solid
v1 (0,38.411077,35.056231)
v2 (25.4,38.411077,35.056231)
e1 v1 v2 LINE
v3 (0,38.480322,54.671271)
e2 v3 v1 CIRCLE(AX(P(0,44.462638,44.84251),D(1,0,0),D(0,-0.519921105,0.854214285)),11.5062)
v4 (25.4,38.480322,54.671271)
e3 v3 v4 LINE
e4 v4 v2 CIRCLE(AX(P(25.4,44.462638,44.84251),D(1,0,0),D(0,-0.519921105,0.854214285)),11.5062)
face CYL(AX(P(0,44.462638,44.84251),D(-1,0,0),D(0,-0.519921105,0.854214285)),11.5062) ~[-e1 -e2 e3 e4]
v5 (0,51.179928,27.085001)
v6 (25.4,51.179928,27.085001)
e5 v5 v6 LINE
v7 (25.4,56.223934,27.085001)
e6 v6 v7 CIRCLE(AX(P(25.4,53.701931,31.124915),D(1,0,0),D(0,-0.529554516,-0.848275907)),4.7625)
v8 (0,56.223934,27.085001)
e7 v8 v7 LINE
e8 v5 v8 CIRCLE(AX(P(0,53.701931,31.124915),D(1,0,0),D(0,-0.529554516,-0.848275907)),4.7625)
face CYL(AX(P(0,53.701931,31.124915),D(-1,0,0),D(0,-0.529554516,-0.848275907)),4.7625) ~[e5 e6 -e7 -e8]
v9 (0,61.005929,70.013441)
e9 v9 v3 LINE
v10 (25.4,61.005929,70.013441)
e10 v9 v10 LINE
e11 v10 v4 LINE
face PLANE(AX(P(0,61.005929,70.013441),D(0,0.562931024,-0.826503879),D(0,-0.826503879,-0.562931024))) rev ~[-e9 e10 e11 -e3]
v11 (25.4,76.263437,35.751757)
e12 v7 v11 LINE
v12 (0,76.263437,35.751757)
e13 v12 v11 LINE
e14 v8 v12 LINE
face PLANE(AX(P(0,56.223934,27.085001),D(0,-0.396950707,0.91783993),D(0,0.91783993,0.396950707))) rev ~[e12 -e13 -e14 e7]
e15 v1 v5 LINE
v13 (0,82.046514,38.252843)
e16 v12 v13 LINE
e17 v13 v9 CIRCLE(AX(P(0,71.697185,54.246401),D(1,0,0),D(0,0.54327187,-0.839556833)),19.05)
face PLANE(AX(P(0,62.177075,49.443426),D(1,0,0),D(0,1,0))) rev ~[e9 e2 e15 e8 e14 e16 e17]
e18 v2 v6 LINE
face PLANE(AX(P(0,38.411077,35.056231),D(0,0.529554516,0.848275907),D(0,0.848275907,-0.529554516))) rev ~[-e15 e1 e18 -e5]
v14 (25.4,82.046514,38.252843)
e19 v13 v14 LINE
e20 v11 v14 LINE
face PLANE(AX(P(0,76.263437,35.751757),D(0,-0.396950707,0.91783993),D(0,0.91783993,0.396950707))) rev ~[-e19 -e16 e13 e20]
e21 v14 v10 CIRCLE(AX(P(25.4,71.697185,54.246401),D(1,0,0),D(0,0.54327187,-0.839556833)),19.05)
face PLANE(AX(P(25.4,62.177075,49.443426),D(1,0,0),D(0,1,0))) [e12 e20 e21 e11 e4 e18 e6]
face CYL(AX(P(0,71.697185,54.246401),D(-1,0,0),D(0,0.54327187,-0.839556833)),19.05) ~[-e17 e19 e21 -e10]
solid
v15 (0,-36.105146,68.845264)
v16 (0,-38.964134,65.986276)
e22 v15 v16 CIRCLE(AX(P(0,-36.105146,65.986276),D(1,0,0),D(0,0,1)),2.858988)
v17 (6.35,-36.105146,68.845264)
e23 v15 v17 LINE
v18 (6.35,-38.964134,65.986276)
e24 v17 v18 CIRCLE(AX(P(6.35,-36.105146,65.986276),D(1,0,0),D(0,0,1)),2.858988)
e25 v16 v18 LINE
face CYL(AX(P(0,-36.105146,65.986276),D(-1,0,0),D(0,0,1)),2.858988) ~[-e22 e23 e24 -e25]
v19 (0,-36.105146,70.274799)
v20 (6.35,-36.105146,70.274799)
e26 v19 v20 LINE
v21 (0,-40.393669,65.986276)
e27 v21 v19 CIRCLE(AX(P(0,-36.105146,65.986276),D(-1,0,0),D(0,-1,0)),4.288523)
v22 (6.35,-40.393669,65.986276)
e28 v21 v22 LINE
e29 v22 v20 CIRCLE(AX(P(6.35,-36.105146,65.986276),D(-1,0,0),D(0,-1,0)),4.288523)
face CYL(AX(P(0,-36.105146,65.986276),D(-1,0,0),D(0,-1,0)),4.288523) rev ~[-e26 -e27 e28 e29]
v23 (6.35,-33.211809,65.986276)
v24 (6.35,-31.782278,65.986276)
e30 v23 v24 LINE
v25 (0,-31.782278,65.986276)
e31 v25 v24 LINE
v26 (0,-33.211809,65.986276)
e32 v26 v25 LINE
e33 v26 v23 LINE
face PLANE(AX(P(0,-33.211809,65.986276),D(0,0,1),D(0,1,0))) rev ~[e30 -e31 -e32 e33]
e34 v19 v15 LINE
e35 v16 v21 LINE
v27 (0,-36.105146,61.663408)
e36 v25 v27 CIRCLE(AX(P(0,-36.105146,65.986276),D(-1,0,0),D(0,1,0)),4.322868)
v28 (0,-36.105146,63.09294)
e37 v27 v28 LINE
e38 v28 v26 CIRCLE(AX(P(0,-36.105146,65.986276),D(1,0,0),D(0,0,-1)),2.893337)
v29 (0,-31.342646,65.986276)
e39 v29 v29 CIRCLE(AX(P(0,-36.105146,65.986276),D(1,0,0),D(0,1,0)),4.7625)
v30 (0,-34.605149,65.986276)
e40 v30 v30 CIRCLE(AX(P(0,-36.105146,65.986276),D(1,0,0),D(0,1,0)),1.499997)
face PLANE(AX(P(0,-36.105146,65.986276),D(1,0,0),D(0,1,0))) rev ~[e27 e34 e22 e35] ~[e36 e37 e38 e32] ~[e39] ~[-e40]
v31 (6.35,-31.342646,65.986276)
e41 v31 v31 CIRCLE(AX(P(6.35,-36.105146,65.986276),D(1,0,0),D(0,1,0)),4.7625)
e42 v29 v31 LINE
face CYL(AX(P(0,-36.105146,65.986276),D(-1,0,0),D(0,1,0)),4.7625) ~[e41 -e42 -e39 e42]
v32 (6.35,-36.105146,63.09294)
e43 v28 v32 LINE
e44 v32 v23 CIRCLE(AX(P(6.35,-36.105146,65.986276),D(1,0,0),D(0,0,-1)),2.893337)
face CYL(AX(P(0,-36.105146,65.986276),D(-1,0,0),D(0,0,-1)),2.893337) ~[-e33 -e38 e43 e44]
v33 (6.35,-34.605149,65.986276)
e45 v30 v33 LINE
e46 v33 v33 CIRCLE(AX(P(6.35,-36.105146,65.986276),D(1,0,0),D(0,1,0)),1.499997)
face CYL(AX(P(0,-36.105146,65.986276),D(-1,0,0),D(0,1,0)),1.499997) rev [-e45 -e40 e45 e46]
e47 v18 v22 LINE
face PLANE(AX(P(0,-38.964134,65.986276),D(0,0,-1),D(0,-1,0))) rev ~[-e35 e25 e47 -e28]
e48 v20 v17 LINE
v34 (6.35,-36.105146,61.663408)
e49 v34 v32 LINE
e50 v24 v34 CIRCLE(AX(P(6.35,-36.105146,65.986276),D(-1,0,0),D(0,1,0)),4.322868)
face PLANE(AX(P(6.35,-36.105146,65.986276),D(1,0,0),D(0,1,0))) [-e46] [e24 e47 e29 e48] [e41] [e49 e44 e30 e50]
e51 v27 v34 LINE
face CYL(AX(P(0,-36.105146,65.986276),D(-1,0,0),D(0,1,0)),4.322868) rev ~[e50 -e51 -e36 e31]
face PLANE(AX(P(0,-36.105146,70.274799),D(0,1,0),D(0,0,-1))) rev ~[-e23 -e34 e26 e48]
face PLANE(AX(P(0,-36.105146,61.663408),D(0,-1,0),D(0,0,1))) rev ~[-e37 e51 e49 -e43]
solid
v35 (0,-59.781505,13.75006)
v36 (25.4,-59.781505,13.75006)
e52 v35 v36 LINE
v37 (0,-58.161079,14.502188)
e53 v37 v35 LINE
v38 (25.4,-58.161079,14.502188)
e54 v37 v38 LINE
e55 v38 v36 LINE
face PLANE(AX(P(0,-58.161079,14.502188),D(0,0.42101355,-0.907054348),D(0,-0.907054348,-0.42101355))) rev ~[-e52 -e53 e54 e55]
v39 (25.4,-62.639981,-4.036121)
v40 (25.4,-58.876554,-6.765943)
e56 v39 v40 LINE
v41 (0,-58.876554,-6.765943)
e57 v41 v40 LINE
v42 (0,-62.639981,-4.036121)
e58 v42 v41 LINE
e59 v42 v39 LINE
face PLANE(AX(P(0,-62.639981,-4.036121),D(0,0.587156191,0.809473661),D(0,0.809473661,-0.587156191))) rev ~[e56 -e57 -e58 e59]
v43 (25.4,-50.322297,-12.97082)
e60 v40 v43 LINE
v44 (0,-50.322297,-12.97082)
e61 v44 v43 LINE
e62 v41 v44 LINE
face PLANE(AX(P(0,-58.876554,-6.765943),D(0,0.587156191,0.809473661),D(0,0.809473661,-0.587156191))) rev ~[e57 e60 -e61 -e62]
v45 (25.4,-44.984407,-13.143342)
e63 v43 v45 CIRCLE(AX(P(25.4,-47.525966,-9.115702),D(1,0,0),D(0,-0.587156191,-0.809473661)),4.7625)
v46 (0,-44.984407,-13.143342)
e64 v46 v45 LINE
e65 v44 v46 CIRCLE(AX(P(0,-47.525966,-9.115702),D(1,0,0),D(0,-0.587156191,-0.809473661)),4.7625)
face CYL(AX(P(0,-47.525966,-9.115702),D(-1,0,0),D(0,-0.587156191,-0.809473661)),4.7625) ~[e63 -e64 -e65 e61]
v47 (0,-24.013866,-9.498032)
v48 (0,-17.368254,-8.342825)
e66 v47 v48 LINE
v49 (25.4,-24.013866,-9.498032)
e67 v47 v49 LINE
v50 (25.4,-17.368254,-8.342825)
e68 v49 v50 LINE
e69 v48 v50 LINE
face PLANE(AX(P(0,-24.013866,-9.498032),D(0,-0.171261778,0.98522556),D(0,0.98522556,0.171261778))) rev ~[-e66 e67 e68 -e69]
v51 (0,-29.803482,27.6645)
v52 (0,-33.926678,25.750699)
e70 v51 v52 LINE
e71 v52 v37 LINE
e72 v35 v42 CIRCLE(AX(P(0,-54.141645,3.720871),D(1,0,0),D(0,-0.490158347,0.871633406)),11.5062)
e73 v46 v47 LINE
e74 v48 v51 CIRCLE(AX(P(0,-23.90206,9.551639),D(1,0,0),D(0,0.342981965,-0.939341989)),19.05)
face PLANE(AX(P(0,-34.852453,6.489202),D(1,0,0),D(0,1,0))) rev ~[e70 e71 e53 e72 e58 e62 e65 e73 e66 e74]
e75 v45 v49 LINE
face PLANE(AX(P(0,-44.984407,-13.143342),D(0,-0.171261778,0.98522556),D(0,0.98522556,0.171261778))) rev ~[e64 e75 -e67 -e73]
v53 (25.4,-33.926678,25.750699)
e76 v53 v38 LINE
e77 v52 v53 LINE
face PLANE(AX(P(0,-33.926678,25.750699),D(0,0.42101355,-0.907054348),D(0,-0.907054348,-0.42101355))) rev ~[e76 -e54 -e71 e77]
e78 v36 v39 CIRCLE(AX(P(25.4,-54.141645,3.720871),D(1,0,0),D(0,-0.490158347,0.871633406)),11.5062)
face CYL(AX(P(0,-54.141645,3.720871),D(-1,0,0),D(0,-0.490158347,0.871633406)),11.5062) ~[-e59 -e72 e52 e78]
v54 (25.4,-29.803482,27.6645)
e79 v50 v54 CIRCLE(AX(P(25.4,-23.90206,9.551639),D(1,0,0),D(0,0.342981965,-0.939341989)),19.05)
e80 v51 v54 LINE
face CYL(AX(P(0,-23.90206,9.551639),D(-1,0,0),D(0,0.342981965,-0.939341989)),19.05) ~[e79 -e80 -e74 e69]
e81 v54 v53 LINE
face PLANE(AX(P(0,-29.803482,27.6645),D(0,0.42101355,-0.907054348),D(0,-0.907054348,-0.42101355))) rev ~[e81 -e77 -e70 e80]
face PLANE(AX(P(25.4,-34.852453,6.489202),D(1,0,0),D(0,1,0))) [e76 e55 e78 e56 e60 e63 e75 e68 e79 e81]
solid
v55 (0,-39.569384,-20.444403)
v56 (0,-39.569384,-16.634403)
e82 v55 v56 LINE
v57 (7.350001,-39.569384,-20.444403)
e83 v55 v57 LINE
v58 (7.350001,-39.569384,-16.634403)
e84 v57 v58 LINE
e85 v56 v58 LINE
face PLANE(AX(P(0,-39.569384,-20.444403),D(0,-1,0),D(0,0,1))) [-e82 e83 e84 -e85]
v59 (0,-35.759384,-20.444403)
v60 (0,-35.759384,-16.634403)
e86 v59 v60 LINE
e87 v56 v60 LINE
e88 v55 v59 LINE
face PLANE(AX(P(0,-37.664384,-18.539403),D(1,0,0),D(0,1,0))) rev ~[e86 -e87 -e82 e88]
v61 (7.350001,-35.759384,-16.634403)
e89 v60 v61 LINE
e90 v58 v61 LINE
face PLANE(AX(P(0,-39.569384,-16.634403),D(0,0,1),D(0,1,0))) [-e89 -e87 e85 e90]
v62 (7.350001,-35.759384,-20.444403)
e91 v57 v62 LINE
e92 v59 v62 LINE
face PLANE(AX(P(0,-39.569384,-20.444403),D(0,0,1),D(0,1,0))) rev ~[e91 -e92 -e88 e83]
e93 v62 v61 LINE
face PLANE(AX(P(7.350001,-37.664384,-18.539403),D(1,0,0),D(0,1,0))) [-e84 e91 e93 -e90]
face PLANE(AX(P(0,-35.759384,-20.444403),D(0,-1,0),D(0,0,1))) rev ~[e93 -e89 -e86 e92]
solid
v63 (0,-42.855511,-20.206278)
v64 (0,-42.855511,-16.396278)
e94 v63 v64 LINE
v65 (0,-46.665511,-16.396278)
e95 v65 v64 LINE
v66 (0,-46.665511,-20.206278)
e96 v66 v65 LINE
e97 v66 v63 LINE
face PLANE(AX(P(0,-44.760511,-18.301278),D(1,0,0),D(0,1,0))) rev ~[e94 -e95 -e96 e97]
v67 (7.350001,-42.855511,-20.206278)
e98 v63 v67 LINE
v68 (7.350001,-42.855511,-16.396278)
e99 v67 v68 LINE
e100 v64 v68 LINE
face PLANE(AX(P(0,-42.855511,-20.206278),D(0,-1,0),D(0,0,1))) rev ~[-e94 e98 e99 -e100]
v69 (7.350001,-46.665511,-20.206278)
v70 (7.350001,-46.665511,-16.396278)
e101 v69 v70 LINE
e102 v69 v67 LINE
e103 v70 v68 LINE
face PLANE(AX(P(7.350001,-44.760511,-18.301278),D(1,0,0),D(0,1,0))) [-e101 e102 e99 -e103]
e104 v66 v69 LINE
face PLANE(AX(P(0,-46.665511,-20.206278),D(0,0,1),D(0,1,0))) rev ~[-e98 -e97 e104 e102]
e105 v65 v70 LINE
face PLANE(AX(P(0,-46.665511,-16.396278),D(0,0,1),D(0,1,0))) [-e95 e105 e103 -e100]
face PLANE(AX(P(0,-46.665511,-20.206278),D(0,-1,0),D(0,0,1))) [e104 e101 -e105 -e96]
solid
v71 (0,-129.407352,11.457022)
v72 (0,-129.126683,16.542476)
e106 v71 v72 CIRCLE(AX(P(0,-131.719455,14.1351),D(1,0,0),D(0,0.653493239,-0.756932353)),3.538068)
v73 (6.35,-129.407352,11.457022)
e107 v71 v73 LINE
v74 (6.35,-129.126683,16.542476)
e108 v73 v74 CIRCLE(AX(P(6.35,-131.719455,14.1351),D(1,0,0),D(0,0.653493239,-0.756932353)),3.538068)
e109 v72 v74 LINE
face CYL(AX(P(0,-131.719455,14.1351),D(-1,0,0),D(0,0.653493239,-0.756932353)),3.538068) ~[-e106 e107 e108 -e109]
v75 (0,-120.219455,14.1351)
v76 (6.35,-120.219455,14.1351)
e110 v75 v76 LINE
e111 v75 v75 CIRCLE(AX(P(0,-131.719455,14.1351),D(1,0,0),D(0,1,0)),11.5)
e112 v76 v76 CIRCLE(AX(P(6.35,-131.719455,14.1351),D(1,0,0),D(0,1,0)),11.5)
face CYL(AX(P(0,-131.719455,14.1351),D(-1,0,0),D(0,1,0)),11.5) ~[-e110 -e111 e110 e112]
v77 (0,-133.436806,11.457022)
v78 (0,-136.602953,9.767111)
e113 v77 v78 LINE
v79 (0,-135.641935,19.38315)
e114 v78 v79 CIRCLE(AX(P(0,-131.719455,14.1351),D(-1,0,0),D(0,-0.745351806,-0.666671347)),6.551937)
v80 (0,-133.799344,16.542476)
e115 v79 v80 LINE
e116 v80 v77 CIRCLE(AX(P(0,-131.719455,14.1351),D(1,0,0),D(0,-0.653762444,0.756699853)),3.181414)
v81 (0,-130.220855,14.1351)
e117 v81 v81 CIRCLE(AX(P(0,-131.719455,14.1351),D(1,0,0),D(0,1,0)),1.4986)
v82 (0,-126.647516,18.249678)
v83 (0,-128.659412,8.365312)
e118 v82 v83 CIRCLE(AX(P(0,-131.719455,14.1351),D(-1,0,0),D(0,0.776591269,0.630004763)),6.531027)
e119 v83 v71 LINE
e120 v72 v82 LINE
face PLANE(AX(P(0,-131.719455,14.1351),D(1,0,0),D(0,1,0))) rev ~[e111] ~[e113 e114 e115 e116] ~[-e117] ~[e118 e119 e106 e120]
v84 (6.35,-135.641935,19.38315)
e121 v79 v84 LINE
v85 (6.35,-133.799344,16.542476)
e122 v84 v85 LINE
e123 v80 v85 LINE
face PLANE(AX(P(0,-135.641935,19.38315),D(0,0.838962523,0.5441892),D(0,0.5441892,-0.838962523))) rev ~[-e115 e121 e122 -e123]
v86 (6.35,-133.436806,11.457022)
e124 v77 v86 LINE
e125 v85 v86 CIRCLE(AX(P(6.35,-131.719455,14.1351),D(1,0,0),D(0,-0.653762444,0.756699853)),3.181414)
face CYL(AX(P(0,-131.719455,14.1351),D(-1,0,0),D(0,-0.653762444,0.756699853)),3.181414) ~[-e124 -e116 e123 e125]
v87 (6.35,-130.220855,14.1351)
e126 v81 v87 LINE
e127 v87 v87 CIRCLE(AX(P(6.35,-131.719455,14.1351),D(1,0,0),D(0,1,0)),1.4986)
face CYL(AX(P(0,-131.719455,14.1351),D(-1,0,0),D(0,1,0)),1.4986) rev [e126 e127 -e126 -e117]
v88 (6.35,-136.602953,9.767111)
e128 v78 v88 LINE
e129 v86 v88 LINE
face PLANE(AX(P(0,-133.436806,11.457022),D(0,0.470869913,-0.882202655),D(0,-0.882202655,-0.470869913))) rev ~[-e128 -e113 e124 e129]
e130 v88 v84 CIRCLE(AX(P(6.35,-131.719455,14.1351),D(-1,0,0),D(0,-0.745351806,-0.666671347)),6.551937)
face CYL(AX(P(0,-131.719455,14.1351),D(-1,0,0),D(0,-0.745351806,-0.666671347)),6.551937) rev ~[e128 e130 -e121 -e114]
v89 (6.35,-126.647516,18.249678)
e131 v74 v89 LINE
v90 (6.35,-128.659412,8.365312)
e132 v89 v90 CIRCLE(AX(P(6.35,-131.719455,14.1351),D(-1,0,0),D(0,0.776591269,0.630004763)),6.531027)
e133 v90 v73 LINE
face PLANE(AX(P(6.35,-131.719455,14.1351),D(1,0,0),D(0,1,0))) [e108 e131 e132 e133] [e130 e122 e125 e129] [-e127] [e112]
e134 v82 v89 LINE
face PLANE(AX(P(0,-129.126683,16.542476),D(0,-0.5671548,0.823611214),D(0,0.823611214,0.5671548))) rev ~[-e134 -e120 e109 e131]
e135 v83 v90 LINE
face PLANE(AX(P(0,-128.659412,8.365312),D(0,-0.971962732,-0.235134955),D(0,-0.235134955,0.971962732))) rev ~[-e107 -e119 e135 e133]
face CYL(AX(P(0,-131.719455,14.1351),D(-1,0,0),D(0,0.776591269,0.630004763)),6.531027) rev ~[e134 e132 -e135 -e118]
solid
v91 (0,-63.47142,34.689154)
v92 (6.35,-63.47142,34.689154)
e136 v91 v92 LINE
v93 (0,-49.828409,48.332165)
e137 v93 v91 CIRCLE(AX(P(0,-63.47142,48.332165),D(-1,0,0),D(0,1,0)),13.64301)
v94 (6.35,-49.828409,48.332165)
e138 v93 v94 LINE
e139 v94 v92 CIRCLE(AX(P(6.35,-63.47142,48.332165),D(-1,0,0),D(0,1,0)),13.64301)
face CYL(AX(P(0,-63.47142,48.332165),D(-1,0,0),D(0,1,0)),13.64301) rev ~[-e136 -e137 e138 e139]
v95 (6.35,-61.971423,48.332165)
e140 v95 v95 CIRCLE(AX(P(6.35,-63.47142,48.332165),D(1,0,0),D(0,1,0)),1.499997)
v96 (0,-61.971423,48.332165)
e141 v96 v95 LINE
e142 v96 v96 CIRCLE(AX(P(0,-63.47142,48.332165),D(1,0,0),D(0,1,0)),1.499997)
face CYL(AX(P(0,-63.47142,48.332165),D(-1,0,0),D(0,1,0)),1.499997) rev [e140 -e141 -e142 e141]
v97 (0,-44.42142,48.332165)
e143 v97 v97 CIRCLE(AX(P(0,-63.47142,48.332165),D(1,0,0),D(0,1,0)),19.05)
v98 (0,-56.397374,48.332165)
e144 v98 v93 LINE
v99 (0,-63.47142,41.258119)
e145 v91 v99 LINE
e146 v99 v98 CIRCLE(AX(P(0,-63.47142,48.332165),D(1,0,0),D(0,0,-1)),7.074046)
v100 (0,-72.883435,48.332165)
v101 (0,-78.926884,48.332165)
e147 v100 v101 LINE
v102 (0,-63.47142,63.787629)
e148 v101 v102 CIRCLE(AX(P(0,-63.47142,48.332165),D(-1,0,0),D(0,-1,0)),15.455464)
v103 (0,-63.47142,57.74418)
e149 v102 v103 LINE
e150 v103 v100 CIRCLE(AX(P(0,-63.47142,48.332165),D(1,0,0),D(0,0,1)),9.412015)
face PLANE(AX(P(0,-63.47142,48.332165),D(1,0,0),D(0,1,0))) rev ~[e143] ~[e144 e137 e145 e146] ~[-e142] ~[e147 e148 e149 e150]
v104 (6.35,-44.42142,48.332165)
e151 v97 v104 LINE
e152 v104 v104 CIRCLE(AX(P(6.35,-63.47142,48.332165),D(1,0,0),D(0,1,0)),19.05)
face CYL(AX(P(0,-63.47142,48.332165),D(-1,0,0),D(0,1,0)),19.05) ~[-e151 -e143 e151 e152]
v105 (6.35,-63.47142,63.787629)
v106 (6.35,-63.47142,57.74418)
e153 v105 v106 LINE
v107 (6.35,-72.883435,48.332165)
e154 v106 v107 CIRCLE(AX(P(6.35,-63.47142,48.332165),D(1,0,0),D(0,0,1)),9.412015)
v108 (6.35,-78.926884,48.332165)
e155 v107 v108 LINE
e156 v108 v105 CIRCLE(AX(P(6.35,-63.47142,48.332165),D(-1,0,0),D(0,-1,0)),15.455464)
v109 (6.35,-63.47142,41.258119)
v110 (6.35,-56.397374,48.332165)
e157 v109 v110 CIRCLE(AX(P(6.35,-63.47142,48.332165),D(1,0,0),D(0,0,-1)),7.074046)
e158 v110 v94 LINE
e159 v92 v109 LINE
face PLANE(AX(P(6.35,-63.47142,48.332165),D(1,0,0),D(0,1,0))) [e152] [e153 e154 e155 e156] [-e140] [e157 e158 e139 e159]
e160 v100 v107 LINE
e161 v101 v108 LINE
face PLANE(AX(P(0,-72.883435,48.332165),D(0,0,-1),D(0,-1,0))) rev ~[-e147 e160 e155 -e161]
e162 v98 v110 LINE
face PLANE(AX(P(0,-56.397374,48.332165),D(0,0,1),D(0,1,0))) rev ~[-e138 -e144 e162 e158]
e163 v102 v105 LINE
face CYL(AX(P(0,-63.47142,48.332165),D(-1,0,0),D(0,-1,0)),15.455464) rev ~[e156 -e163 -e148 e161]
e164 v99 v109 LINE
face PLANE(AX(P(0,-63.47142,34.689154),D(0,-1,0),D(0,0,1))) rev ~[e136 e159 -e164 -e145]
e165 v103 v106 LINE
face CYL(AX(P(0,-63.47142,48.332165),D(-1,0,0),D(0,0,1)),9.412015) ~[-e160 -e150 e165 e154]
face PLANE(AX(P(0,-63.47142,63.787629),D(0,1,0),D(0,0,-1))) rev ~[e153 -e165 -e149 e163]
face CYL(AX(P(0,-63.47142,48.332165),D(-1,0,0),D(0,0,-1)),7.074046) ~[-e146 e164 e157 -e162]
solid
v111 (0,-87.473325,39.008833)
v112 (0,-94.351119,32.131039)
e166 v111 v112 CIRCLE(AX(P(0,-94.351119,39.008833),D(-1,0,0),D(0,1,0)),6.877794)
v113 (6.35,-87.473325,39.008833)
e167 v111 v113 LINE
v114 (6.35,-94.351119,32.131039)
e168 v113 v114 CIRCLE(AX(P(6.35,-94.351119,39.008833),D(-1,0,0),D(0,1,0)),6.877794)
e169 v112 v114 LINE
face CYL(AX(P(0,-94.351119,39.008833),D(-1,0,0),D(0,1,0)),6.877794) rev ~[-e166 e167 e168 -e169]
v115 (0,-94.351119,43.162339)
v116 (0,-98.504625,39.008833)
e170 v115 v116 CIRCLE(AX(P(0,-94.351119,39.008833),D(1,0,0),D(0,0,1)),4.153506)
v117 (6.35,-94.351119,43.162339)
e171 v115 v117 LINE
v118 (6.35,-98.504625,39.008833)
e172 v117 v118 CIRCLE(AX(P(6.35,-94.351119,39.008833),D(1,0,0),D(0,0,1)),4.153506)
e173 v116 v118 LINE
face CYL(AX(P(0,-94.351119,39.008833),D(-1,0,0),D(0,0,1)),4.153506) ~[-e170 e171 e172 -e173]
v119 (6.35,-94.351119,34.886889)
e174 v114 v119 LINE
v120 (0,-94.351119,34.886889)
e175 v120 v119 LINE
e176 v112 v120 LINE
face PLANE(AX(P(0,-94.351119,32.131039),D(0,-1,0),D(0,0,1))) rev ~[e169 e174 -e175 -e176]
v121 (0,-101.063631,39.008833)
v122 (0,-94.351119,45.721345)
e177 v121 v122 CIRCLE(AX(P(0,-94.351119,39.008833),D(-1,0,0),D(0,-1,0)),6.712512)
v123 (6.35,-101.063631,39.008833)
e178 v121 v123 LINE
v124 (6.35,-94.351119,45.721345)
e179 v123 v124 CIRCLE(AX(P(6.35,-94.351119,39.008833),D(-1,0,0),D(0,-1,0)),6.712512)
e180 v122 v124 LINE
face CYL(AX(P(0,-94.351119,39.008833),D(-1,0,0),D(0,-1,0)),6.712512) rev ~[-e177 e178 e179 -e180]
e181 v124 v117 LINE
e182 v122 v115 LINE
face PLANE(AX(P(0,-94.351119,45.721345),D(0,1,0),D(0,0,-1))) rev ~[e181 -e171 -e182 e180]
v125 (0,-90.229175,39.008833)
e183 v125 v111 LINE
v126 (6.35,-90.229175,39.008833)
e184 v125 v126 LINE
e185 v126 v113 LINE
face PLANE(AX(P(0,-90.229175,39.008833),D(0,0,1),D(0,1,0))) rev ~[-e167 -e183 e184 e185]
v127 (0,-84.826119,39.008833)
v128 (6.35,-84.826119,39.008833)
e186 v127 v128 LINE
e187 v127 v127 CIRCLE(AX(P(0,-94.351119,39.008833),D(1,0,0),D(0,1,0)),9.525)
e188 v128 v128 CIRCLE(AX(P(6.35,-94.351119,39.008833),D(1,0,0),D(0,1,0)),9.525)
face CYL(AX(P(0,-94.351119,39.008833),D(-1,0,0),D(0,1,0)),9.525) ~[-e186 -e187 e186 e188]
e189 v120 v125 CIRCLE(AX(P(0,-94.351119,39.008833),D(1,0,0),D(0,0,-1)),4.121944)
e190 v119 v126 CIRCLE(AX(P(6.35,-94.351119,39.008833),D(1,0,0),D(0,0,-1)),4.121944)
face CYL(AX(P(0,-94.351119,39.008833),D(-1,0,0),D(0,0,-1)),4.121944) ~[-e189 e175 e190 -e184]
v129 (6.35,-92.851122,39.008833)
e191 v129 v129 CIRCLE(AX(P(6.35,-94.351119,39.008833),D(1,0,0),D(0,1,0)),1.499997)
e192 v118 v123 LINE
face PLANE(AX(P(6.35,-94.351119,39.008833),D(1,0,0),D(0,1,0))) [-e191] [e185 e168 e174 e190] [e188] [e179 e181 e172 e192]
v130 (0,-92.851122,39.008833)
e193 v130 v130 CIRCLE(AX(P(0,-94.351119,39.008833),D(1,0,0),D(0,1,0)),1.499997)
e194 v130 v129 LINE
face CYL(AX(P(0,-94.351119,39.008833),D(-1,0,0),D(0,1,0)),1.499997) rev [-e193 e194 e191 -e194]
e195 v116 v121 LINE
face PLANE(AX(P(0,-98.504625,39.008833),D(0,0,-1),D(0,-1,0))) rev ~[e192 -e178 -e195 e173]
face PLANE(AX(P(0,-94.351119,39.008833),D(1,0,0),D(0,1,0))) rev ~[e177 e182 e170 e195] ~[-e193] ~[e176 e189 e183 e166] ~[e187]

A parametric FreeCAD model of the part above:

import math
import FreeCAD as App
import Part
import Sketcher
Q = App.Units.Quantity


def add_polygon(sketch, points):
    """Adds a closed chain of lines whose ends are joined by coincident constraints."""
    first, n = sketch.GeometryCount, len(points)
    for a, b in zip(points, points[1:] + points[:1]):
        sketch.addGeometry(Part.LineSegment(App.Vector(*a, 0), App.Vector(*b, 0)), False)
    for i in range(n):
        sketch.addConstraint(Sketcher.Constraint("Coincident", first + i, 2, first + (i + 1) % n, 1))

doc = App.newDocument("Part")
body = doc.addObject("PartDesign::Body", "Body")

# Sketch on YZ plane
sketch1 = body.newObject("Sketcher::SketchObject", "Sketch")
sketch1.AttachmentSupport = (doc.getObject("YZ_Plane"), [""])
sketch1.MapMode = "FlatFace"
add_polygon(sketch1, [(-46.665511, -16.396278), (-46.665511, -20.206278), (-42.855511, -20.206278), (-42.855511, -16.396278)])  # lines 0-3
sketch1.addConstraint([
    Sketcher.Constraint("Vertical", 0),
    Sketcher.Constraint("Horizontal", 1),
    Sketcher.Constraint("Vertical", 2),
    Sketcher.Constraint("Horizontal", 3),
    Sketcher.Constraint("Equal", 3, 0),
    Sketcher.Constraint("DistanceX", 1, 1, 1, 2, Q("0.15 in")),
    Sketcher.Constraint("DistanceX", 0, 2, -1, 1, 46.665511),
    Sketcher.Constraint("DistanceY", 0, 2, -1, 1, 20.206278),
])
pad1 = body.newObject("PartDesign::Pad", "Pad")
pad1.Profile = sketch1
pad1.Length = 7.350001
body2 = doc.addObject("PartDesign::Body", "Body001")

# Sketch on YZ plane
sketch2 = body2.newObject("Sketcher::SketchObject", "Sketch001")
sketch2.AttachmentSupport = (doc.getObject("YZ_Plane001"), [""])
sketch2.MapMode = "FlatFace"
add_polygon(sketch2, [(-39.569384, -16.634403), (-39.569384, -20.444403), (-35.759384, -20.444403), (-35.759384, -16.634403)])  # lines 0-3
sketch2.addConstraint([
    Sketcher.Constraint("Vertical", 0),
    Sketcher.Constraint("Horizontal", 1),
    Sketcher.Constraint("Vertical", 2),
    Sketcher.Constraint("Horizontal", 3),
    Sketcher.Constraint("Equal", 3, 0),
    Sketcher.Constraint("DistanceX", 1, 1, 1, 2, Q("0.15 in")),
    Sketcher.Constraint("DistanceX", 0, 2, -1, 1, 39.569384),
    Sketcher.Constraint("DistanceY", 0, 2, -1, 1, 20.444403),
])
pad2 = body2.newObject("PartDesign::Pad", "Pad001")
pad2.Profile = sketch2
pad2.Length = 7.350001
body3 = doc.addObject("PartDesign::Body", "Body002")

# Sketch on YZ plane
sketch3 = body3.newObject("Sketcher::SketchObject", "Sketch002")
sketch3.AttachmentSupport = (doc.getObject("YZ_Plane002"), [""])
sketch3.MapMode = "FlatFace"
sketch3.addGeometry([
    Part.Circle(App.Vector(-63.47142, 48.332165, 0), App.Vector(0, 0, 1), 19.05),  # 0
    Part.ArcOfCircle(Part.Circle(App.Vector(-63.47142, 48.332165, 0), App.Vector(0, 0, 1), 13.64301), math.radians(-90), math.radians(0)),  # 1
    Part.LineSegment(App.Vector(-63.47142, 34.689154, 0), App.Vector(-63.47142, 41.258119, 0)),  # 2
    Part.ArcOfCircle(Part.Circle(App.Vector(-63.47142, 48.332165, 0), App.Vector(0, 0, 1), 7.074046), math.radians(-90), math.radians(0)),  # 3
    Part.LineSegment(App.Vector(-56.397374, 48.332165, 0), App.Vector(-49.828409, 48.332165, 0)),  # 4
    Part.Circle(App.Vector(-63.47142, 48.332165, 0), App.Vector(0, 0, 1), 1.499997),  # 5
    Part.LineSegment(App.Vector(-63.47142, 63.787629, 0), App.Vector(-63.47142, 57.74418, 0)),  # 6
    Part.ArcOfCircle(Part.Circle(App.Vector(-63.47142, 48.332165, 0), App.Vector(0, 0, 1), 9.412015), math.radians(90), math.radians(180)),  # 7
    Part.LineSegment(App.Vector(-72.883435, 48.332165, 0), App.Vector(-78.926884, 48.332165, 0)),  # 8
    Part.ArcOfCircle(Part.Circle(App.Vector(-63.47142, 48.332165, 0), App.Vector(0, 0, 1), 15.455464), math.radians(90), math.radians(180)),  # 9
], False)
sketch3.addConstraint([
    Sketcher.Constraint("Coincident", 1, 1, 2, 1),
    Sketcher.Constraint("Coincident", 2, 2, 3, 1),
    Sketcher.Constraint("Coincident", 3, 2, 4, 1),
    Sketcher.Constraint("Coincident", 4, 2, 1, 2),
    Sketcher.Constraint("Coincident", 6, 2, 7, 1),
    Sketcher.Constraint("Coincident", 7, 2, 8, 1),
    Sketcher.Constraint("Coincident", 8, 2, 9, 2),
    Sketcher.Constraint("Coincident", 9, 1, 6, 1),
    Sketcher.Constraint("Vertical", 2),
    Sketcher.Constraint("Horizontal", 4),
    Sketcher.Constraint("Vertical", 6),
    Sketcher.Constraint("Horizontal", 8),
    Sketcher.Constraint("Coincident", 1, 3, 0, 3),
    Sketcher.Constraint("Coincident", 3, 3, 0, 3),
    Sketcher.Constraint("Coincident", 5, 3, 0, 3),
    Sketcher.Constraint("Coincident", 7, 3, 0, 3),
    Sketcher.Constraint("Coincident", 9, 3, 0, 3),
    Sketcher.Constraint("Horizontal", 9, 3, 3, 2),
    Sketcher.Constraint("Horizontal", 4, 2, 7, 2),
    Sketcher.Constraint("Vertical", 9, 3, 1, 1),
    Sketcher.Constraint("Vertical", 2, 2, 6, 2),
    Sketcher.Constraint("Diameter", 0, Q("1.5 in")),
    Sketcher.Constraint("Radius", 1, 13.64301),
    Sketcher.Constraint("Diameter", 5, 2.999994),
    Sketcher.Constraint("Radius", 3, 7.074046),
    Sketcher.Constraint("Radius", 7, 9.412015),
    Sketcher.Constraint("Radius", 9, 15.455464),
    Sketcher.Constraint("DistanceX", 0, 3, -1, 1, 63.47142),
    Sketcher.Constraint("DistanceY", -1, 1, 2, 2, 41.258119),
])
pad3 = body3.newObject("PartDesign::Pad", "Pad002")
pad3.Profile = sketch3
pad3.Length = Q("0.25 in")
body4 = doc.addObject("PartDesign::Body", "Body003")

# Sketch on YZ plane
sketch4 = body4.newObject("Sketcher::SketchObject", "Sketch003")
sketch4.AttachmentSupport = (doc.getObject("YZ_Plane003"), [""])
sketch4.MapMode = "FlatFace"
sketch4.addGeometry([
    Part.Circle(App.Vector(-36.105146, 65.986276, 0), App.Vector(0, 0, 1), 4.7625),  # 0
    Part.ArcOfCircle(Part.Circle(App.Vector(-36.105146, 65.986276, 0), App.Vector(0, 0, 1), 4.322868), math.radians(-90), math.radians(0)),  # 1
    Part.LineSegment(App.Vector(-36.105146, 61.663408, 0), App.Vector(-36.105146, 63.09294, 0)),  # 2
    Part.ArcOfCircle(Part.Circle(App.Vector(-36.105146, 65.986276, 0), App.Vector(0, 0, 1), 2.893337), math.radians(-90), math.radians(0)),  # 3
    Part.LineSegment(App.Vector(-33.211809, 65.986276, 0), App.Vector(-31.782278, 65.986276, 0)),  # 4
    Part.Circle(App.Vector(-36.105146, 65.986276, 0), App.Vector(0, 0, 1), 1.499997),  # 5
    Part.LineSegment(App.Vector(-36.105146, 70.274799, 0), App.Vector(-36.105146, 68.845264, 0)),  # 6
    Part.ArcOfCircle(Part.Circle(App.Vector(-36.105146, 65.986276, 0), App.Vector(0, 0, 1), 2.858988), math.radians(90), math.radians(180)),  # 7
    Part.LineSegment(App.Vector(-38.964134, 65.986276, 0), App.Vector(-40.393669, 65.986276, 0)),  # 8
    Part.ArcOfCircle(Part.Circle(App.Vector(-36.105146, 65.986276, 0), App.Vector(0, 0, 1), 4.288523), math.radians(90), math.radians(180)),  # 9
], False)
sketch4.addConstraint([
    Sketcher.Constraint("Coincident", 1, 1, 2, 1),
    Sketcher.Constraint("Coincident", 2, 2, 3, 1),
    Sketcher.Constraint("Coincident", 3, 2, 4, 1),
    Sketcher.Constraint("Coincident", 4, 2, 1, 2),
    Sketcher.Constraint("Coincident", 6, 2, 7, 1),
    Sketcher.Constraint("Coincident", 7, 2, 8, 1),
    Sketcher.Constraint("Coincident", 8, 2, 9, 2),
    Sketcher.Constraint("Coincident", 9, 1, 6, 1),
    Sketcher.Constraint("Vertical", 2),
    Sketcher.Constraint("Horizontal", 4),
    Sketcher.Constraint("Vertical", 6),
    Sketcher.Constraint("Horizontal", 8),
    Sketcher.Constraint("Coincident", 1, 3, 0, 3),
    Sketcher.Constraint("Coincident", 3, 3, 0, 3),
    Sketcher.Constraint("Coincident", 5, 3, 0, 3),
    Sketcher.Constraint("Coincident", 7, 3, 0, 3),
    Sketcher.Constraint("Coincident", 9, 3, 0, 3),
    Sketcher.Constraint("Horizontal", 9, 3, 3, 2),
    Sketcher.Constraint("Horizontal", 4, 2, 7, 2),
    Sketcher.Constraint("Vertical", 9, 3, 1, 1),
    Sketcher.Constraint("Vertical", 2, 2, 6, 2),
    Sketcher.Constraint("Diameter", 0, Q("0.375 in")),
    Sketcher.Constraint("Radius", 1, 4.322868),
    Sketcher.Constraint("Diameter", 5, 2.999994),
    Sketcher.Constraint("Radius", 3, 2.893337),
    Sketcher.Constraint("Radius", 7, 2.858988),
    Sketcher.Constraint("Radius", 9, 4.288523),
    Sketcher.Constraint("DistanceY", -1, 1, 9, 1, 70.274799),
    Sketcher.Constraint("DistanceX", 3, 2, -1, 1, 33.211809),
])
pad4 = body4.newObject("PartDesign::Pad", "Pad003")
pad4.Profile = sketch4
pad4.Length = Q("0.25 in")
body5 = doc.addObject("PartDesign::Body", "Body004")

# Sketch on YZ plane
sketch5 = body5.newObject("Sketcher::SketchObject", "Sketch004")
sketch5.AttachmentSupport = (doc.getObject("YZ_Plane004"), [""])
sketch5.MapMode = "FlatFace"
sketch5.addGeometry([
    Part.Circle(App.Vector(-94.351119, 39.008833, 0), App.Vector(0, 0, 1), 9.525),  # 0
    Part.LineSegment(App.Vector(-90.229175, 39.008833, 0), App.Vector(-87.473325, 39.008833, 0)),  # 1
    Part.ArcOfCircle(Part.Circle(App.Vector(-94.351119, 39.008833, 0), App.Vector(0, 0, 1), 6.877794), math.radians(-90), math.radians(0)),  # 2
    Part.LineSegment(App.Vector(-94.351119, 32.131039, 0), App.Vector(-94.351119, 34.886889, 0)),  # 3
    Part.ArcOfCircle(Part.Circle(App.Vector(-94.351119, 39.008833, 0), App.Vector(0, 0, 1), 4.121944), math.radians(-90), math.radians(0)),  # 4
    Part.Circle(App.Vector(-94.351119, 39.008833, 0), App.Vector(0, 0, 1), 1.499997),  # 5
    Part.ArcOfCircle(Part.Circle(App.Vector(-94.351119, 39.008833, 0), App.Vector(0, 0, 1), 4.153506), math.radians(90), math.radians(180)),  # 6
    Part.LineSegment(App.Vector(-98.504625, 39.008833, 0), App.Vector(-101.063631, 39.008833, 0)),  # 7
    Part.ArcOfCircle(Part.Circle(App.Vector(-94.351119, 39.008833, 0), App.Vector(0, 0, 1), 6.712512), math.radians(90), math.radians(180)),  # 8
    Part.LineSegment(App.Vector(-94.351119, 45.721345, 0), App.Vector(-94.351119, 43.162339, 0)),  # 9
], False)
sketch5.addConstraint([
    Sketcher.Constraint("Coincident", 1, 2, 2, 2),
    Sketcher.Constraint("Coincident", 2, 1, 3, 1),
    Sketcher.Constraint("Coincident", 3, 2, 4, 1),
    Sketcher.Constraint("Coincident", 4, 2, 1, 1),
    Sketcher.Constraint("Coincident", 6, 2, 7, 1),
    Sketcher.Constraint("Coincident", 7, 2, 8, 2),
    Sketcher.Constraint("Coincident", 8, 1, 9, 1),
    Sketcher.Constraint("Coincident", 9, 2, 6, 1),
    Sketcher.Constraint("Horizontal", 1),
    Sketcher.Constraint("Vertical", 3),
    Sketcher.Constraint("Horizontal", 7),
    Sketcher.Constraint("Vertical", 9),
    Sketcher.Constraint("Coincident", 2, 3, 0, 3),
    Sketcher.Constraint("Coincident", 4, 3, 0, 3),
    Sketcher.Constraint("Coincident", 5, 3, 0, 3),
    Sketcher.Constraint("Coincident", 6, 3, 0, 3),
    Sketcher.Constraint("Coincident", 8, 3, 0, 3),
    Sketcher.Constraint("Horizontal", 8, 3, 1, 2),
    Sketcher.Constraint("Horizontal", 4, 2, 6, 2),
    Sketcher.Constraint("Vertical", 8, 3, 2, 1),
    Sketcher.Constraint("Vertical", 3, 2, 8, 1),
    Sketcher.Constraint("Diameter", 0, Q("0.75 in")),
    Sketcher.Constraint("Diameter", 5, 2.999994),
    Sketcher.Constraint("Radius", 2, 6.877794),
    Sketcher.Constraint("Radius", 4, 4.121944),
    Sketcher.Constraint("Radius", 6, 4.153506),
    Sketcher.Constraint("Radius", 8, 6.712512),
    Sketcher.Constraint("DistanceX", 0, 3, -1, 1, 94.351119),
    Sketcher.Constraint("DistanceY", -1, 1, 2, 1, 32.131039),
])
pad5 = body5.newObject("PartDesign::Pad", "Pad004")
pad5.Profile = sketch5
pad5.Length = Q("0.25 in")
body6 = doc.addObject("PartDesign::Body", "Body005")

# Sketch on YZ plane
sketch6 = body6.newObject("Sketcher::SketchObject", "Sketch005")
sketch6.AttachmentSupport = (doc.getObject("YZ_Plane005"), [""])
sketch6.MapMode = "FlatFace"
sketch6.addGeometry([
    Part.Circle(App.Vector(-131.719455, 14.1351, 0), App.Vector(0, 0, 1), 11.5),  # 0
    Part.LineSegment(App.Vector(-129.126683, 16.542476, 0), App.Vector(-126.647516, 18.249678, 0)),  # 1
    Part.ArcOfCircle(Part.Circle(App.Vector(-131.719455, 14.1351, 0), App.Vector(0, 0, 1), 6.531027), math.radians(-62.060481), math.radians(39.050474)),  # 2
    Part.LineSegment(App.Vector(-128.659412, 8.365312, 0), App.Vector(-129.407352, 11.457022, 0)),  # 3
    Part.ArcOfCircle(Part.Circle(App.Vector(-131.719455, 14.1351, 0), App.Vector(0, 0, 1), 3.538068), math.radians(-49.194502), math.radians(42.876548)),  # 4
    Part.ArcOfCircle(Part.Circle(App.Vector(-131.719455, 14.1351, 0), App.Vector(0, 0, 1), 3.181414), math.radians(130.825878), math.radians(237.329474)),  # 5
    Part.LineSegment(App.Vector(-133.436806, 11.457022, 0), App.Vector(-136.602953, 9.767111, 0)),  # 6
    Part.ArcOfCircle(Part.Circle(App.Vector(-131.719455, 14.1351, 0), App.Vector(0, 0, 1), 6.551937), math.radians(126.775048), math.radians(221.810675)),  # 7
    Part.LineSegment(App.Vector(-135.641935, 19.38315, 0), App.Vector(-133.799344, 16.542476, 0)),  # 8
    Part.Circle(App.Vector(-131.719455, 14.1351, 0), App.Vector(0, 0, 1), 1.4986),  # 9
], False)
sketch6.addConstraint([
    Sketcher.Constraint("Coincident", 1, 2, 2, 2),
    Sketcher.Constraint("Coincident", 2, 1, 3, 1),
    Sketcher.Constraint("Coincident", 3, 2, 4, 1),
    Sketcher.Constraint("Coincident", 4, 2, 1, 1),
    Sketcher.Constraint("Coincident", 5, 2, 6, 1),
    Sketcher.Constraint("Coincident", 6, 2, 7, 2),
    Sketcher.Constraint("Coincident", 7, 1, 8, 1),
    Sketcher.Constraint("Coincident", 8, 2, 5, 1),
    Sketcher.Constraint("Coincident", 2, 3, 0, 3),
    Sketcher.Constraint("Coincident", 4, 3, 0, 3),
    Sketcher.Constraint("Coincident", 5, 3, 0, 3),
    Sketcher.Constraint("Coincident", 7, 3, 0, 3),
    Sketcher.Constraint("Coincident", 9, 3, 0, 3),
    Sketcher.Constraint("Horizontal", 3, 2, 5, 2),
    Sketcher.Constraint("Horizontal", 4, 2, 8, 2),
    Sketcher.Constraint("Diameter", 9, Q("0.118 in")),
    Sketcher.Constraint("Diameter", 0, 23.0),
    Sketcher.Constraint("Radius", 4, 3.538068),
    Sketcher.Constraint("DistanceY", -1, 1, 0, 3, Q("0.5565 in")),
    Sketcher.Constraint("Radius", 2, 6.531027),
    Sketcher.Constraint("Radius", 5, 3.181414),
    Sketcher.Constraint("Radius", 7, 6.551937),
    Sketcher.Constraint("Distance", 6, 3.588911),
    Sketcher.Constraint("DistanceY", -1, 1, 1, 2, 18.249678),
    Sketcher.Constraint("DistanceY", -1, 1, 2, 1, 8.365312),
    Sketcher.Constraint("DistanceX", 3, 2, -1, 1, 129.407352),
    Sketcher.Constraint("DistanceY", -1, 1, 3, 2, 11.457022),
    Sketcher.Constraint("DistanceY", -1, 1, 7, 1, 19.38315),
    Sketcher.Constraint("DistanceX", 8, 2, 0, 3, 2.079889),
])
pad6 = body6.newObject("PartDesign::Pad", "Pad005")
pad6.Profile = sketch6
pad6.Length = Q("0.25 in")
body7 = doc.addObject("PartDesign::Body", "Body006")

# Sketch on YZ plane
sketch7 = body7.newObject("Sketcher::SketchObject", "Sketch006")
sketch7.AttachmentSupport = (doc.getObject("YZ_Plane006"), [""])
sketch7.MapMode = "FlatFace"
sketch7.addGeometry([
    Part.LineSegment(App.Vector(-44.984407, -13.143342, 0), App.Vector(-24.013866, -9.498032, 0)),  # 0
    Part.LineSegment(App.Vector(-24.013866, -9.498032, 0), App.Vector(-17.368254, -8.342825, 0)),  # 1
    Part.ArcOfCircle(Part.Circle(App.Vector(-23.90206, 9.551639, 0), App.Vector(0, 0, 1), 19.05), math.radians(-69.941344), math.radians(108.046331)),  # 2
    Part.LineSegment(App.Vector(-29.803482, 27.6645, 0), App.Vector(-33.926678, 25.750699, 0)),  # 3
    Part.LineSegment(App.Vector(-33.926678, 25.750699, 0), App.Vector(-58.161079, 14.502188, 0)),  # 4
    Part.LineSegment(App.Vector(-58.161079, 14.502188, 0), App.Vector(-59.781505, 13.75006, 0)),  # 5
    Part.ArcOfCircle(Part.Circle(App.Vector(-54.141645, 3.720871, 0), App.Vector(0, 0, 1), 11.5062), math.radians(119.35099), math.radians(222.388764)),  # 6
    Part.LineSegment(App.Vector(-62.639981, -4.036121, 0), App.Vector(-58.876554, -6.765943, 0)),  # 7
    Part.LineSegment(App.Vector(-58.876554, -6.765943, 0), App.Vector(-50.322297, -12.97082, 0)),  # 8
    Part.ArcOfCircle(Part.Circle(App.Vector(-47.525966, -9.115702, 0), App.Vector(0, 0, 1), 4.7625), math.radians(-125.955461), math.radians(-57.746866)),  # 9
], False)
sketch7.addConstraint([
    Sketcher.Constraint("Coincident", 0, 2, 1, 1),
    Sketcher.Constraint("Coincident", 1, 2, 2, 1),
    Sketcher.Constraint("Coincident", 2, 2, 3, 1),
    Sketcher.Constraint("Coincident", 3, 2, 4, 1),
    Sketcher.Constraint("Coincident", 4, 2, 5, 1),
    Sketcher.Constraint("Coincident", 5, 2, 6, 1),
    Sketcher.Constraint("Coincident", 6, 2, 7, 1),
    Sketcher.Constraint("Coincident", 7, 2, 8, 1),
    Sketcher.Constraint("Coincident", 8, 2, 9, 1),
    Sketcher.Constraint("Coincident", 9, 2, 0, 1),
    Sketcher.Constraint("Radius", 2, Q("0.75 in")),
    Sketcher.Constraint("Radius", 6, Q("0.453 in")),
    Sketcher.Constraint("Radius", 9, Q("0.1875 in")),
    Sketcher.Constraint("Distance", 3, 4.545698),
    Sketcher.Constraint("DistanceY", -1, 1, 2, 2, 27.6645),
    Sketcher.Constraint("DistanceY", -1, 1, 3, 2, 25.750699),
    Sketcher.Constraint("DistanceX", 9, 3, 0, 2, 23.5121),
    Sketcher.Constraint("DistanceY", 9, 3, 3, 2, 34.866402),
    Sketcher.Constraint("DistanceX", 4, 2, 3, 2, 24.234401),
    Sketcher.Constraint("DistanceY", 8, 2, 6, 2, 8.9347),
    Sketcher.Constraint("DistanceY", 9, 2, 7, 2, 6.377399),
    Sketcher.Constraint("Distance", 1, 6.74527),
    Sketcher.Constraint("Distance", 5, 1.786471),
    Sketcher.Constraint("DistanceX", 2, 3, -1, 1, 23.90206),
    Sketcher.Constraint("DistanceY", -1, 1, 2, 3, 9.551639),
    Sketcher.Constraint("DistanceY", -1, 1, 6, 3, 3.720871),
    Sketcher.Constraint("DistanceY", -1, 1, 5, 2, 13.75006),
    Sketcher.Constraint("DistanceX", 6, 2, -1, 1, 62.639981),
    Sketcher.Constraint("DistanceY", 6, 2, -1, 1, 4.036121),
    Sketcher.Constraint("DistanceY", 9, 2, -1, 1, 13.143342),
    Sketcher.Constraint("DistanceX", 6, 3, 9, 3, 6.615679),
    Sketcher.Constraint("DistanceY", 0, 2, 2, 3, 19.049672),
    Sketcher.Constraint("DistanceX", 7, 2, 6, 3, 4.734909),
])
pad7 = body7.newObject("PartDesign::Pad", "Pad006")
pad7.Profile = sketch7
pad7.Length = Q("1 in")
body8 = doc.addObject("PartDesign::Body", "Body007")

# Sketch on YZ plane
sketch8 = body8.newObject("Sketcher::SketchObject", "Sketch007")
sketch8.AttachmentSupport = (doc.getObject("YZ_Plane007"), [""])
sketch8.MapMode = "FlatFace"
sketch8.addGeometry([
    Part.LineSegment(App.Vector(38.411077, 35.056231, 0), App.Vector(51.179928, 27.085001, 0)),  # 0
    Part.ArcOfCircle(Part.Circle(App.Vector(53.701931, 31.124915, 0), App.Vector(0, 0, 1), 4.7625), math.radians(-121.97536), math.radians(-58.02464)),  # 1
    Part.LineSegment(App.Vector(56.223934, 27.085001, 0), App.Vector(76.263437, 35.751757, 0)),  # 2
    Part.LineSegment(App.Vector(76.263437, 35.751757, 0), App.Vector(82.046514, 38.252843, 0)),  # 3
    Part.ArcOfCircle(Part.Circle(App.Vector(71.697185, 54.246401, 0), App.Vector(0, 0, 1), 19.05), math.radians(-57.093352), math.radians(124.140263)),  # 4
    Part.LineSegment(App.Vector(61.005929, 70.013441, 0), App.Vector(38.480322, 54.671271, 0)),  # 5
    Part.ArcOfCircle(Part.Circle(App.Vector(44.462638, 44.84251, 0), App.Vector(0, 0, 1), 11.5062), math.radians(121.32696), math.radians(238.268516)),  # 6
], False)
sketch8.addConstraint([
    Sketcher.Constraint("Tangent", 0, 2, 1, 1),
    Sketcher.Constraint("Coincident", 1, 2, 2, 1),
    Sketcher.Constraint("Coincident", 2, 2, 3, 1),
    Sketcher.Constraint("Coincident", 3, 2, 4, 1),
    Sketcher.Constraint("Coincident", 4, 2, 5, 1),
    Sketcher.Constraint("Coincident", 5, 2, 6, 1),
    Sketcher.Constraint("Coincident", 6, 2, 0, 1),
    Sketcher.Constraint("Parallel", 2, 3),
    Sketcher.Constraint("Horizontal", 0, 2, 1, 2),
    Sketcher.Constraint("Radius", 4, Q("0.75 in")),
    Sketcher.Constraint("Radius", 1, Q("0.1875 in")),
    Sketcher.Constraint("Radius", 6, Q("0.453 in")),
    Sketcher.Constraint("DistanceX", 6, 3, 2, 2, Q("1.252 in")),
    Sketcher.Constraint("DistanceY", -1, 1, 4, 3, 54.246401),
    Sketcher.Constraint("DistanceY", -1, 1, 0, 2, 27.085001),
    Sketcher.Constraint("DistanceX", 1, 3, 4, 2, 7.303998),
    Sketcher.Constraint("Distance", 0, 15.052709),
    Sketcher.Constraint("Distance", 2, 21.83333),
    Sketcher.Constraint("DistanceX", -1, 1, 1, 3, 53.701931),
    Sketcher.Constraint("DistanceY", -1, 1, 6, 3, 44.84251),
    Sketcher.Constraint("DistanceY", -1, 1, 4, 2, 70.013441),
    Sketcher.Constraint("DistanceX", -1, 1, 5, 2, 38.480322),
    Sketcher.Constraint("DistanceY", -1, 1, 5, 2, 54.671271),
])
pad8 = body8.newObject("PartDesign::Pad", "Pad007")
pad8.Profile = sketch8
pad8.Length = Q("1 in")

doc.recompute()
